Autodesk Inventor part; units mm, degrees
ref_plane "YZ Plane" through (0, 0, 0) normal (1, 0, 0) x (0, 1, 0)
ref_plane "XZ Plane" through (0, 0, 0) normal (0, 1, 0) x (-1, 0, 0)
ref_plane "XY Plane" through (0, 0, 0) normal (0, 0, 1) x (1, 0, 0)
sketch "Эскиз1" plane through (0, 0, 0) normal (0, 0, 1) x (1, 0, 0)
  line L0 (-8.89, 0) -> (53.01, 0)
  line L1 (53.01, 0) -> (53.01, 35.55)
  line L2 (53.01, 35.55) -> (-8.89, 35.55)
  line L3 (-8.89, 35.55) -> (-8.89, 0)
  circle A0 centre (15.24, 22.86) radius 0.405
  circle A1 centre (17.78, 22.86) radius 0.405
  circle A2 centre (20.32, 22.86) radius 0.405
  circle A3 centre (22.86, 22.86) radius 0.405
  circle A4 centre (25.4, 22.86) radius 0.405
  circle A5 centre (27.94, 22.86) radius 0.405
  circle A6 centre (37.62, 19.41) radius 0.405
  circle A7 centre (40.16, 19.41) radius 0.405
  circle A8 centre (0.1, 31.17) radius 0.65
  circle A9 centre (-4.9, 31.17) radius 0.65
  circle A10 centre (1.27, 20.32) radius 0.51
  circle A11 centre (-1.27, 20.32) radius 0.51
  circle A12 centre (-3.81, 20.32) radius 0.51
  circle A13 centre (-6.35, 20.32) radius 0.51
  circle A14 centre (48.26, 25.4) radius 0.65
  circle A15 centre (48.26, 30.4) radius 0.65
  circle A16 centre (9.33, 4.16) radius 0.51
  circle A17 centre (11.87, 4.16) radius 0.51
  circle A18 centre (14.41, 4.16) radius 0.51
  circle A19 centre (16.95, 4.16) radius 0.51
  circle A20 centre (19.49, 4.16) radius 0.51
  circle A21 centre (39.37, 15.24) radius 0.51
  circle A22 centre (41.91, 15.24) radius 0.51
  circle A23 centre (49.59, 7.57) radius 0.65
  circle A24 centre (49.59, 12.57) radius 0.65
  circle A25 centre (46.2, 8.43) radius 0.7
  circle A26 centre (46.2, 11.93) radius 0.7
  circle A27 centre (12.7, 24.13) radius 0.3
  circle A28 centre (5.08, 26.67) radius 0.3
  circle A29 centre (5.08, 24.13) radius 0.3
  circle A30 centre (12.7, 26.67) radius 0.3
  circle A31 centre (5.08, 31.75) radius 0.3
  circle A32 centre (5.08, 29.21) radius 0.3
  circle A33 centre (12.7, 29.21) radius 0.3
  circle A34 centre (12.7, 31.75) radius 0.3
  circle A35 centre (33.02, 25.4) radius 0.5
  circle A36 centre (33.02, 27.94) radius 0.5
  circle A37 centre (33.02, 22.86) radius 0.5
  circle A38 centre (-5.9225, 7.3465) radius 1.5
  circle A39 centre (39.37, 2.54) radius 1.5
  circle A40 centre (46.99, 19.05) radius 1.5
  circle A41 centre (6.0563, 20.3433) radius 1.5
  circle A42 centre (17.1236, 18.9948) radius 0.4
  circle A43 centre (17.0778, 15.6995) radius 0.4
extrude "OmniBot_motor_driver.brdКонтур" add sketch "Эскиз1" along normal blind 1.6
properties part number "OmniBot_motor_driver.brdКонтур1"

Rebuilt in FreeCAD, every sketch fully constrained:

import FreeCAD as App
import Part
import Sketcher

V = App.Vector

doc = App.newDocument("Part")
body = doc.addObject("PartDesign::Body", "Body")

sketch1 = body.newObject("Sketcher::SketchObject", "Sketch")
sketch1.AttachmentSupport = (doc.getObject("XY_Plane"), [""])
sketch1.MapMode = "FlatFace"
sketch1.addGeometry(Part.LineSegment(V(-8.89, 35.55, 0), V(-8.89, 0, 0)), False)
sketch1.addGeometry(Part.LineSegment(V(-8.89, 0, 0), V(53.01, 0, 0)), False)
sketch1.addGeometry(Part.LineSegment(V(53.01, 0, 0), V(53.01, 35.55, 0)), False)
sketch1.addGeometry(Part.LineSegment(V(53.01, 35.55, 0), V(-8.89, 35.55, 0)), False)
sketch1.addGeometry(Part.Circle(V(-5.92, 7.35, 0), V(0, 0, 1), 1.5), False)
sketch1.addGeometry(Part.Circle(V(9.33, 4.16, 0), V(0, 0, 1), 0.51), False)
sketch1.addGeometry(Part.Circle(V(11.87, 4.16, 0), V(0, 0, 1), 0.51), False)
sketch1.addGeometry(Part.Circle(V(14.41, 4.16, 0), V(0, 0, 1), 0.51), False)
sketch1.addGeometry(Part.Circle(V(16.95, 4.16, 0), V(0, 0, 1), 0.51), False)
sketch1.addGeometry(Part.Circle(V(19.49, 4.16, 0), V(0, 0, 1), 0.51), False)
sketch1.addGeometry(Part.Circle(V(17.08, 15.7, 0), V(0, 0, 1), 0.4), False)
sketch1.addGeometry(Part.Circle(V(39.37, 2.54, 0), V(0, 0, 1), 1.5), False)
sketch1.addGeometry(Part.Circle(V(46.2, 8.43, 0), V(0, 0, 1), 0.7), False)
sketch1.addGeometry(Part.Circle(V(49.59, 7.57, 0), V(0, 0, 1), 0.65), False)
sketch1.addGeometry(Part.Circle(V(46.2, 11.93, 0), V(0, 0, 1), 0.7), False)
sketch1.addGeometry(Part.Circle(V(49.59, 12.57, 0), V(0, 0, 1), 0.65), False)
sketch1.addGeometry(Part.Circle(V(39.37, 15.24, 0), V(0, 0, 1), 0.51), False)
sketch1.addGeometry(Part.Circle(V(41.91, 15.24, 0), V(0, 0, 1), 0.51), False)
sketch1.addGeometry(Part.Circle(V(-6.35, 20.32, 0), V(0, 0, 1), 0.51), False)
sketch1.addGeometry(Part.Circle(V(-3.81, 20.32, 0), V(0, 0, 1), 0.51), False)
sketch1.addGeometry(Part.Circle(V(-1.27, 20.32, 0), V(0, 0, 1), 0.51), False)
sketch1.addGeometry(Part.Circle(V(1.27, 20.32, 0), V(0, 0, 1), 0.51), False)
sketch1.addGeometry(Part.Circle(V(6.06, 20.34, 0), V(0, 0, 1), 1.5), False)
sketch1.addGeometry(Part.Circle(V(5.08, 24.13, 0), V(0, 0, 1), 0.3), False)
sketch1.addGeometry(Part.Circle(V(17.12, 18.99, 0), V(0, 0, 1), 0.4), False)
sketch1.addGeometry(Part.Circle(V(12.7, 24.13, 0), V(0, 0, 1), 0.3), False)
sketch1.addGeometry(Part.Circle(V(15.24, 22.86, 0), V(0, 0, 1), 0.41), False)
sketch1.addGeometry(Part.Circle(V(17.78, 22.86, 0), V(0, 0, 1), 0.41), False)
sketch1.addGeometry(Part.Circle(V(20.32, 22.86, 0), V(0, 0, 1), 0.41), False)
sketch1.addGeometry(Part.Circle(V(5.08, 26.67, 0), V(0, 0, 1), 0.3), False)
sketch1.addGeometry(Part.Circle(V(5.08, 29.21, 0), V(0, 0, 1), 0.3), False)
sketch1.addGeometry(Part.Circle(V(-4.9, 31.17, 0), V(0, 0, 1), 0.65), False)
sketch1.addGeometry(Part.Circle(V(0.1, 31.17, 0), V(0, 0, 1), 0.65), False)
sketch1.addGeometry(Part.Circle(V(5.08, 31.75, 0), V(0, 0, 1), 0.3), False)
sketch1.addGeometry(Part.Circle(V(12.7, 26.67, 0), V(0, 0, 1), 0.3), False)
sketch1.addGeometry(Part.Circle(V(12.7, 29.21, 0), V(0, 0, 1), 0.3), False)
sketch1.addGeometry(Part.Circle(V(12.7, 31.75, 0), V(0, 0, 1), 0.3), False)
sketch1.addGeometry(Part.Circle(V(22.86, 22.86, 0), V(0, 0, 1), 0.41), False)
sketch1.addGeometry(Part.Circle(V(25.4, 22.86, 0), V(0, 0, 1), 0.41), False)
sketch1.addGeometry(Part.Circle(V(27.94, 22.86, 0), V(0, 0, 1), 0.41), False)
sketch1.addGeometry(Part.Circle(V(33.02, 22.86, 0), V(0, 0, 1), 0.5), False)
sketch1.addGeometry(Part.Circle(V(33.02, 25.4, 0), V(0, 0, 1), 0.5), False)
sketch1.addGeometry(Part.Circle(V(37.62, 19.41, 0), V(0, 0, 1), 0.41), False)
sketch1.addGeometry(Part.Circle(V(40.16, 19.41, 0), V(0, 0, 1), 0.41), False)
sketch1.addGeometry(Part.Circle(V(46.99, 19.05, 0), V(0, 0, 1), 1.5), False)
sketch1.addGeometry(Part.Circle(V(48.26, 25.4, 0), V(0, 0, 1), 0.65), False)
sketch1.addGeometry(Part.Circle(V(33.02, 27.94, 0), V(0, 0, 1), 0.5), False)
sketch1.addGeometry(Part.Circle(V(48.26, 30.4, 0), V(0, 0, 1), 0.65), False)
sketch1.addConstraint(Sketcher.Constraint("Coincident", 0, 2, 1, 1))
sketch1.addConstraint(Sketcher.Constraint("Coincident", 1, 2, 2, 1))
sketch1.addConstraint(Sketcher.Constraint("Coincident", 2, 2, 3, 1))
sketch1.addConstraint(Sketcher.Constraint("Coincident", 3, 2, 0, 1))
sketch1.addConstraint(Sketcher.Constraint("Vertical", 0))
sketch1.addConstraint(Sketcher.Constraint("Horizontal", 1))
sketch1.addConstraint(Sketcher.Constraint("Vertical", 2))
sketch1.addConstraint(Sketcher.Constraint("Horizontal", 3))
sketch1.addConstraint(Sketcher.Constraint("Equal", 5, 6))
sketch1.addConstraint(Sketcher.Constraint("Equal", 6, 7))
sketch1.addConstraint(Sketcher.Constraint("Equal", 7, 8))
sketch1.addConstraint(Sketcher.Constraint("Equal", 8, 9))
sketch1.addConstraint(Sketcher.Constraint("Equal", 4, 11))
sketch1.addConstraint(Sketcher.Constraint("Equal", 12, 14))
sketch1.addConstraint(Sketcher.Constraint("Equal", 13, 15))
sketch1.addConstraint(Sketcher.Constraint("Equal", 9, 16))
sketch1.addConstraint(Sketcher.Constraint("Equal", 16, 17))
sketch1.addConstraint(Sketcher.Constraint("Equal", 17, 18))
sketch1.addConstraint(Sketcher.Constraint("Equal", 18, 19))
sketch1.addConstraint(Sketcher.Constraint("Equal", 19, 20))
sketch1.addConstraint(Sketcher.Constraint("Equal", 20, 21))
sketch1.addConstraint(Sketcher.Constraint("Equal", 11, 22))
sketch1.addConstraint(Sketcher.Constraint("Equal", 10, 24))
sketch1.addConstraint(Sketcher.Constraint("Equal", 23, 25))
sketch1.addConstraint(Sketcher.Constraint("Equal", 26, 27))
sketch1.addConstraint(Sketcher.Constraint("Equal", 27, 28))
sketch1.addConstraint(Sketcher.Constraint("Equal", 25, 29))
sketch1.addConstraint(Sketcher.Constraint("Equal", 29, 30))
sketch1.addConstraint(Sketcher.Constraint("Equal", 15, 31))
sketch1.addConstraint(Sketcher.Constraint("Equal", 31, 32))
sketch1.addConstraint(Sketcher.Constraint("Equal", 30, 33))
sketch1.addConstraint(Sketcher.Constraint("Equal", 33, 34))
sketch1.addConstraint(Sketcher.Constraint("Equal", 34, 35))
sketch1.addConstraint(Sketcher.Constraint("Equal", 35, 36))
sketch1.addConstraint(Sketcher.Constraint("Equal", 28, 37))
sketch1.addConstraint(Sketcher.Constraint("Equal", 37, 38))
sketch1.addConstraint(Sketcher.Constraint("Equal", 38, 39))
sketch1.addConstraint(Sketcher.Constraint("Equal", 40, 41))
sketch1.addConstraint(Sketcher.Constraint("Equal", 39, 42))
sketch1.addConstraint(Sketcher.Constraint("Equal", 42, 43))
sketch1.addConstraint(Sketcher.Constraint("Equal", 22, 44))
sketch1.addConstraint(Sketcher.Constraint("Equal", 32, 45))
sketch1.addConstraint(Sketcher.Constraint("Equal", 41, 46))
sketch1.addConstraint(Sketcher.Constraint("Equal", 45, 47))
sketch1.addConstraint(Sketcher.Constraint("Symmetric", 20, 3, 21, 3, -2))
sketch1.addConstraint(Sketcher.Constraint("PointOnObject", 0, 2, -1))
sketch1.addConstraint(Sketcher.Constraint("Horizontal", 5, 3, 6, 3))
sketch1.addConstraint(Sketcher.Constraint("Horizontal", 6, 3, 7, 3))
sketch1.addConstraint(Sketcher.Constraint("Horizontal", 7, 3, 8, 3))
sketch1.addConstraint(Sketcher.Constraint("Horizontal", 8, 3, 9, 3))
sketch1.addConstraint(Sketcher.Constraint("Horizontal", 16, 3, 17, 3))
sketch1.addConstraint(Sketcher.Constraint("Horizontal", 18, 3, 19, 3))
sketch1.addConstraint(Sketcher.Constraint("Horizontal", 19, 3, 20, 3))
sketch1.addConstraint(Sketcher.Constraint("Horizontal", 23, 3, 25, 3))
sketch1.addConstraint(Sketcher.Constraint("Horizontal", 26, 3, 27, 3))
sketch1.addConstraint(Sketcher.Constraint("Horizontal", 27, 3, 28, 3))
sketch1.addConstraint(Sketcher.Constraint("Horizontal", 31, 3, 32, 3))
sketch1.addConstraint(Sketcher.Constraint("Horizontal", 29, 3, 34, 3))
sketch1.addConstraint(Sketcher.Constraint("Horizontal", 30, 3, 35, 3))
sketch1.addConstraint(Sketcher.Constraint("Horizontal", 33, 3, 36, 3))
sketch1.addConstraint(Sketcher.Constraint("Horizontal", 28, 3, 37, 3))
sketch1.addConstraint(Sketcher.Constraint("Horizontal", 37, 3, 38, 3))
sketch1.addConstraint(Sketcher.Constraint("Horizontal", 38, 3, 39, 3))
sketch1.addConstraint(Sketcher.Constraint("Horizontal", 39, 3, 40, 3))
sketch1.addConstraint(Sketcher.Constraint("Horizontal", 42, 3, 43, 3))
sketch1.addConstraint(Sketcher.Constraint("Horizontal", 41, 3, 45, 3))
sketch1.addConstraint(Sketcher.Constraint("Vertical", 12, 3, 14, 3))
sketch1.addConstraint(Sketcher.Constraint("Vertical", 13, 3, 15, 3))
sketch1.addConstraint(Sketcher.Constraint("Vertical", 11, 3, 16, 3))
sketch1.addConstraint(Sketcher.Constraint("Vertical", 23, 3, 29, 3))
sketch1.addConstraint(Sketcher.Constraint("Vertical", 29, 3, 30, 3))
sketch1.addConstraint(Sketcher.Constraint("Vertical", 30, 3, 33, 3))
sketch1.addConstraint(Sketcher.Constraint("Vertical", 25, 3, 34, 3))
sketch1.addConstraint(Sketcher.Constraint("Vertical", 34, 3, 35, 3))
sketch1.addConstraint(Sketcher.Constraint("Vertical", 35, 3, 36, 3))
sketch1.addConstraint(Sketcher.Constraint("Vertical", 40, 3, 41, 3))
sketch1.addConstraint(Sketcher.Constraint("Vertical", 41, 3, 46, 3))
sketch1.addConstraint(Sketcher.Constraint("Vertical", 45, 3, 47, 3))
sketch1.addConstraint(Sketcher.Constraint("Diameter", 4, 3.0))
sketch1.addConstraint(Sketcher.Constraint("Diameter", 40, 1.0))
sketch1.addConstraint(Sketcher.Constraint("Diameter", 10, 0.8))
sketch1.addConstraint(Sketcher.Constraint("Diameter", 12, 1.4))
sketch1.addConstraint(Sketcher.Constraint("Diameter", 13, 1.3))
sketch1.addConstraint(Sketcher.Constraint("Diameter", 23, 0.6))
sketch1.addConstraint(Sketcher.Constraint("Diameter", 5, 1.02))
sketch1.addConstraint(Sketcher.Constraint("Diameter", 26, 0.81))
sketch1.addConstraint(Sketcher.Constraint("DistanceX", 1, 1, 1, 2, 61.9))
sketch1.addConstraint(Sketcher.Constraint("DistanceY", 13, 3, 15, 3, 5.0))
sketch1.addConstraint(Sketcher.Constraint("DistanceX", 31, 3, 32, 3, 5.0))
sketch1.addConstraint(Sketcher.Constraint("DistanceY", 45, 3, 47, 3, 5.0))
sketch1.addConstraint(Sketcher.Constraint("DistanceY", 0, 2, 0, 1, 35.55))
sketch1.addConstraint(Sketcher.Constraint("DistanceX", -1, 1, 12, 3, 46.2))
sketch1.addConstraint(Sketcher.Constraint("DistanceX", -1, 1, 25, 3, 12.7))
sketch1.addConstraint(Sketcher.Constraint("DistanceX", 31, 3, -1, 1, 4.9))
sketch1.addConstraint(Sketcher.Constraint("DistanceX", -1, 1, 38, 3, 25.4))
sketch1.addConstraint(Sketcher.Constraint("DistanceY", -1, 1, 41, 3, 25.4))
sketch1.addConstraint(Sketcher.Constraint("DistanceX", 6, 3, 11, 3, 27.5))
sketch1.addConstraint(Sketcher.Constraint("DistanceX", 9, 3, 13, 3, 30.1))
sketch1.addConstraint(Sketcher.Constraint("DistanceY", 12, 3, 14, 3, 3.5))
sketch1.addConstraint(Sketcher.Constraint("DistanceY", 11, 3, 16, 3, 12.7))
sketch1.addConstraint(Sketcher.Constraint("DistanceX", 20, 3, 5, 3, 10.6))
sketch1.addConstraint(Sketcher.Constraint("DistanceY", 29, 3, 31, 3, 4.5))
sketch1.addConstraint(Sketcher.Constraint("DistanceX", 40, 3, 42, 3, 4.6))
sketch1.addConstraint(Sketcher.Constraint("DistanceX", 44, 3, 15, 3, 2.6))
sketch1.addConstraint(Sketcher.Constraint("DistanceX", 43, 3, 45, 3, 8.1))
sketch1.addConstraint(Sketcher.Constraint("DistanceY", 44, 3, 2, 2, 16.5))
sketch1.addConstraint(Sketcher.Constraint("DistanceY", 33, 3, 3, 2, 3.8))
sketch1.addConstraint(Sketcher.Constraint("DistanceX", -1, 1, 5, 3, 9.33))
sketch1.addConstraint(Sketcher.Constraint("DistanceY", -1, 1, 5, 3, 4.16))
sketch1.addConstraint(Sketcher.Constraint("DistanceX", -1, 1, 6, 3, 11.87))
sketch1.addConstraint(Sketcher.Constraint("DistanceX", -1, 1, 7, 3, 14.41))
sketch1.addConstraint(Sketcher.Constraint("DistanceX", -1, 1, 8, 3, 16.95))
sketch1.addConstraint(Sketcher.Constraint("DistanceX", -1, 1, 9, 3, 19.49))
sketch1.addConstraint(Sketcher.Constraint("DistanceY", -1, 1, 11, 3, 2.54))
sketch1.addConstraint(Sketcher.Constraint("DistanceY", -1, 1, 12, 3, 8.43))
sketch1.addConstraint(Sketcher.Constraint("DistanceY", -1, 1, 13, 3, 7.57))
sketch1.addConstraint(Sketcher.Constraint("DistanceX", -1, 1, 17, 3, 41.91))
sketch1.addConstraint(Sketcher.Constraint("DistanceX", 18, 3, -1, 1, 6.35))
sketch1.addConstraint(Sketcher.Constraint("DistanceY", -1, 1, 18, 3, 20.32))
sketch1.addConstraint(Sketcher.Constraint("DistanceX", 19, 3, -1, 1, 3.81))
sketch1.addConstraint(Sketcher.Constraint("DistanceX", -1, 1, 23, 3, 5.08))
sketch1.addConstraint(Sketcher.Constraint("DistanceY", -1, 1, 23, 3, 24.13))
sketch1.addConstraint(Sketcher.Constraint("DistanceX", -1, 1, 26, 3, 15.24))
sketch1.addConstraint(Sketcher.Constraint("DistanceY", -1, 1, 26, 3, 22.86))
sketch1.addConstraint(Sketcher.Constraint("DistanceX", -1, 1, 27, 3, 17.78))
sketch1.addConstraint(Sketcher.Constraint("DistanceX", -1, 1, 28, 3, 20.32))
sketch1.addConstraint(Sketcher.Constraint("DistanceY", -1, 1, 29, 3, 26.67))
sketch1.addConstraint(Sketcher.Constraint("DistanceY", -1, 1, 30, 3, 29.21))
sketch1.addConstraint(Sketcher.Constraint("DistanceX", -1, 1, 37, 3, 22.86))
sketch1.addConstraint(Sketcher.Constraint("DistanceX", -1, 1, 39, 3, 27.94))
sketch1.addConstraint(Sketcher.Constraint("DistanceX", -1, 1, 40, 3, 33.02))
sketch1.addConstraint(Sketcher.Constraint("DistanceY", -1, 1, 42, 3, 19.41))
sketch1.addConstraint(Sketcher.Constraint("DistanceX", -1, 1, 43, 3, 40.16))
sketch1.addConstraint(Sketcher.Constraint("DistanceY", -1, 1, 46, 3, 27.94))
sketch1.addConstraint(Sketcher.Constraint("DistanceX", 0, 2, -1, 1, 8.89))
sketch1.addConstraint(Sketcher.Constraint("DistanceX", 4, 3, -1, 1, 5.9225))
sketch1.addConstraint(Sketcher.Constraint("DistanceY", -1, 1, 4, 3, 7.3465))
sketch1.addConstraint(Sketcher.Constraint("DistanceX", -1, 1, 10, 3, 17.0778))
sketch1.addConstraint(Sketcher.Constraint("DistanceY", -1, 1, 10, 3, 15.6995))
sketch1.addConstraint(Sketcher.Constraint("DistanceX", -1, 1, 22, 3, 6.0563))
sketch1.addConstraint(Sketcher.Constraint("DistanceY", -1, 1, 22, 3, 20.3433))
sketch1.addConstraint(Sketcher.Constraint("DistanceX", -1, 1, 24, 3, 17.1236))
sketch1.addConstraint(Sketcher.Constraint("DistanceY", -1, 1, 24, 3, 18.9948))
pad1 = body.newObject("PartDesign::Pad", "Pad")
pad1.Profile = sketch1
pad1.Length = 1.6

doc.recompute()
